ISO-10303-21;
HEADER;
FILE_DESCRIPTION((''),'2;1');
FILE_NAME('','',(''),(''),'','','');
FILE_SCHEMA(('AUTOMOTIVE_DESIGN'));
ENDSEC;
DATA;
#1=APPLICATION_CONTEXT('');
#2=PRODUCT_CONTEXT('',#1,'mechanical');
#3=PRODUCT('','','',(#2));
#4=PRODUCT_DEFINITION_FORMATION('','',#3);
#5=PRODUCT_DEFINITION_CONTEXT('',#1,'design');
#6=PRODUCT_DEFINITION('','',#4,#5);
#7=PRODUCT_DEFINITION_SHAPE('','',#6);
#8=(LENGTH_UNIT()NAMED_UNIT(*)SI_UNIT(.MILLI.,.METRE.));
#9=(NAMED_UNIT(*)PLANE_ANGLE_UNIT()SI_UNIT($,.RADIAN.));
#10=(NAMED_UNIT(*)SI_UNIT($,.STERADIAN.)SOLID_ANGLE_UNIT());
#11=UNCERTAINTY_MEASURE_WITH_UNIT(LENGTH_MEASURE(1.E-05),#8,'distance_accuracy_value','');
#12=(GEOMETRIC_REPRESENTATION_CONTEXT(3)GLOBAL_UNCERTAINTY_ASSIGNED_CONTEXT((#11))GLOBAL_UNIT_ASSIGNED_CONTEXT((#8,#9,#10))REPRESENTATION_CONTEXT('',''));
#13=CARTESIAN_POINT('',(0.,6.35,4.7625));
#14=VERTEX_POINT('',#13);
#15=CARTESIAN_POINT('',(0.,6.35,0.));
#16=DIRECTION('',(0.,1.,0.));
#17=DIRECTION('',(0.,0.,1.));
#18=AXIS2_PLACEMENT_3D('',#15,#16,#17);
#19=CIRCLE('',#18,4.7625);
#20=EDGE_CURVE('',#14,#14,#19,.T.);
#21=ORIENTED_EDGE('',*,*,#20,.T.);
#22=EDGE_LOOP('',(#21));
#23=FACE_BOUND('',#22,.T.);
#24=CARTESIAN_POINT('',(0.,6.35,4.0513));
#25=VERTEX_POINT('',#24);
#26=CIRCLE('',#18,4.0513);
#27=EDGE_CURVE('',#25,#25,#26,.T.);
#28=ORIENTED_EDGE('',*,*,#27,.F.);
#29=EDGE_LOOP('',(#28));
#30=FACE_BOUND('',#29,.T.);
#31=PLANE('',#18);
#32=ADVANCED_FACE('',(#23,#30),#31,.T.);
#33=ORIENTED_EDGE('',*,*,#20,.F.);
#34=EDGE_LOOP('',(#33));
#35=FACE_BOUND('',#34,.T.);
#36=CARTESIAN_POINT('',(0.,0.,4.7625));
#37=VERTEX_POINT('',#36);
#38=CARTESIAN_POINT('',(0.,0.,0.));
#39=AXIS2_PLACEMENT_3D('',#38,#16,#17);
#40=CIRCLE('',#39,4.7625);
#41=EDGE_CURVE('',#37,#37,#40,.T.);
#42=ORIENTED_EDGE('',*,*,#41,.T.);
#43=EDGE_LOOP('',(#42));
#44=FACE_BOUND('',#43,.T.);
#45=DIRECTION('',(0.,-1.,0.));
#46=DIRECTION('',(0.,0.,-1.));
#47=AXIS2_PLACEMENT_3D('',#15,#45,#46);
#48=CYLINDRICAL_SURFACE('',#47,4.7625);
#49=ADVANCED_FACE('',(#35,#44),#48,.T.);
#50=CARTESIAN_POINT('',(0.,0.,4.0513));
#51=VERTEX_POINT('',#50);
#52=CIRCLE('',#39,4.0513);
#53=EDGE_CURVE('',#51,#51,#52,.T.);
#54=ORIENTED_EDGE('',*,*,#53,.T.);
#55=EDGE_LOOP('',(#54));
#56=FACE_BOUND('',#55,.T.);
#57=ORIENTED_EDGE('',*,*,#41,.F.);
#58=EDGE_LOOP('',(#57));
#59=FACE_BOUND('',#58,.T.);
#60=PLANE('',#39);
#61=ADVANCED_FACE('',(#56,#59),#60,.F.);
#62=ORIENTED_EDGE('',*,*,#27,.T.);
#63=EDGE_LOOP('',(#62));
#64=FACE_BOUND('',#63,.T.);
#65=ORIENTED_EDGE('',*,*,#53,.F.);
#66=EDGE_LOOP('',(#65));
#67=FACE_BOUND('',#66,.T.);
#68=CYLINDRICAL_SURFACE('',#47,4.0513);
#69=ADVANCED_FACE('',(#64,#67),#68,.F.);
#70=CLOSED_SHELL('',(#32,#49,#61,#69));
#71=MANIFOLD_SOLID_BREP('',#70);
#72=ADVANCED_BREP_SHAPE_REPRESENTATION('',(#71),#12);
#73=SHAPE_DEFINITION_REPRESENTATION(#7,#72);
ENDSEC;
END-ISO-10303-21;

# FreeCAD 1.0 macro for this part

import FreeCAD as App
import Part
import Sketcher
from FreeCAD import Vector
Q = App.Units.Quantity

doc = App.newDocument("Part")
body = doc.addObject("PartDesign::Body", "Body")

sketch1 = body.newObject("Sketcher::SketchObject", "Sketch")
sketch1.AttachmentSupport = (doc.getObject("XZ_Plane"), [""])
sketch1.MapMode = "FlatFace"
sketch1.addGeometry([
    Part.Circle(Vector(0, 0, 0), Vector(0, 0, 1), 4.8),
    Part.Circle(Vector(0, 0, 0), Vector(0, 0, 1), 4.1),
], False)
sketch1.addConstraint([
    Sketcher.Constraint("Coincident", 0, 3, -1, 1),
    Sketcher.Constraint("Coincident", 1, 3, -1, 1),
    Sketcher.Constraint("Diameter", 0, Q("0.375 in")),
    Sketcher.Constraint("Diameter", 1, Q("0.319 in")),
])
pad1 = body.newObject("PartDesign::Pad", "Pad")
pad1.Profile = sketch1
pad1.Length = Q("0.25 in")
pad1.Reversed = True

doc.recompute()
